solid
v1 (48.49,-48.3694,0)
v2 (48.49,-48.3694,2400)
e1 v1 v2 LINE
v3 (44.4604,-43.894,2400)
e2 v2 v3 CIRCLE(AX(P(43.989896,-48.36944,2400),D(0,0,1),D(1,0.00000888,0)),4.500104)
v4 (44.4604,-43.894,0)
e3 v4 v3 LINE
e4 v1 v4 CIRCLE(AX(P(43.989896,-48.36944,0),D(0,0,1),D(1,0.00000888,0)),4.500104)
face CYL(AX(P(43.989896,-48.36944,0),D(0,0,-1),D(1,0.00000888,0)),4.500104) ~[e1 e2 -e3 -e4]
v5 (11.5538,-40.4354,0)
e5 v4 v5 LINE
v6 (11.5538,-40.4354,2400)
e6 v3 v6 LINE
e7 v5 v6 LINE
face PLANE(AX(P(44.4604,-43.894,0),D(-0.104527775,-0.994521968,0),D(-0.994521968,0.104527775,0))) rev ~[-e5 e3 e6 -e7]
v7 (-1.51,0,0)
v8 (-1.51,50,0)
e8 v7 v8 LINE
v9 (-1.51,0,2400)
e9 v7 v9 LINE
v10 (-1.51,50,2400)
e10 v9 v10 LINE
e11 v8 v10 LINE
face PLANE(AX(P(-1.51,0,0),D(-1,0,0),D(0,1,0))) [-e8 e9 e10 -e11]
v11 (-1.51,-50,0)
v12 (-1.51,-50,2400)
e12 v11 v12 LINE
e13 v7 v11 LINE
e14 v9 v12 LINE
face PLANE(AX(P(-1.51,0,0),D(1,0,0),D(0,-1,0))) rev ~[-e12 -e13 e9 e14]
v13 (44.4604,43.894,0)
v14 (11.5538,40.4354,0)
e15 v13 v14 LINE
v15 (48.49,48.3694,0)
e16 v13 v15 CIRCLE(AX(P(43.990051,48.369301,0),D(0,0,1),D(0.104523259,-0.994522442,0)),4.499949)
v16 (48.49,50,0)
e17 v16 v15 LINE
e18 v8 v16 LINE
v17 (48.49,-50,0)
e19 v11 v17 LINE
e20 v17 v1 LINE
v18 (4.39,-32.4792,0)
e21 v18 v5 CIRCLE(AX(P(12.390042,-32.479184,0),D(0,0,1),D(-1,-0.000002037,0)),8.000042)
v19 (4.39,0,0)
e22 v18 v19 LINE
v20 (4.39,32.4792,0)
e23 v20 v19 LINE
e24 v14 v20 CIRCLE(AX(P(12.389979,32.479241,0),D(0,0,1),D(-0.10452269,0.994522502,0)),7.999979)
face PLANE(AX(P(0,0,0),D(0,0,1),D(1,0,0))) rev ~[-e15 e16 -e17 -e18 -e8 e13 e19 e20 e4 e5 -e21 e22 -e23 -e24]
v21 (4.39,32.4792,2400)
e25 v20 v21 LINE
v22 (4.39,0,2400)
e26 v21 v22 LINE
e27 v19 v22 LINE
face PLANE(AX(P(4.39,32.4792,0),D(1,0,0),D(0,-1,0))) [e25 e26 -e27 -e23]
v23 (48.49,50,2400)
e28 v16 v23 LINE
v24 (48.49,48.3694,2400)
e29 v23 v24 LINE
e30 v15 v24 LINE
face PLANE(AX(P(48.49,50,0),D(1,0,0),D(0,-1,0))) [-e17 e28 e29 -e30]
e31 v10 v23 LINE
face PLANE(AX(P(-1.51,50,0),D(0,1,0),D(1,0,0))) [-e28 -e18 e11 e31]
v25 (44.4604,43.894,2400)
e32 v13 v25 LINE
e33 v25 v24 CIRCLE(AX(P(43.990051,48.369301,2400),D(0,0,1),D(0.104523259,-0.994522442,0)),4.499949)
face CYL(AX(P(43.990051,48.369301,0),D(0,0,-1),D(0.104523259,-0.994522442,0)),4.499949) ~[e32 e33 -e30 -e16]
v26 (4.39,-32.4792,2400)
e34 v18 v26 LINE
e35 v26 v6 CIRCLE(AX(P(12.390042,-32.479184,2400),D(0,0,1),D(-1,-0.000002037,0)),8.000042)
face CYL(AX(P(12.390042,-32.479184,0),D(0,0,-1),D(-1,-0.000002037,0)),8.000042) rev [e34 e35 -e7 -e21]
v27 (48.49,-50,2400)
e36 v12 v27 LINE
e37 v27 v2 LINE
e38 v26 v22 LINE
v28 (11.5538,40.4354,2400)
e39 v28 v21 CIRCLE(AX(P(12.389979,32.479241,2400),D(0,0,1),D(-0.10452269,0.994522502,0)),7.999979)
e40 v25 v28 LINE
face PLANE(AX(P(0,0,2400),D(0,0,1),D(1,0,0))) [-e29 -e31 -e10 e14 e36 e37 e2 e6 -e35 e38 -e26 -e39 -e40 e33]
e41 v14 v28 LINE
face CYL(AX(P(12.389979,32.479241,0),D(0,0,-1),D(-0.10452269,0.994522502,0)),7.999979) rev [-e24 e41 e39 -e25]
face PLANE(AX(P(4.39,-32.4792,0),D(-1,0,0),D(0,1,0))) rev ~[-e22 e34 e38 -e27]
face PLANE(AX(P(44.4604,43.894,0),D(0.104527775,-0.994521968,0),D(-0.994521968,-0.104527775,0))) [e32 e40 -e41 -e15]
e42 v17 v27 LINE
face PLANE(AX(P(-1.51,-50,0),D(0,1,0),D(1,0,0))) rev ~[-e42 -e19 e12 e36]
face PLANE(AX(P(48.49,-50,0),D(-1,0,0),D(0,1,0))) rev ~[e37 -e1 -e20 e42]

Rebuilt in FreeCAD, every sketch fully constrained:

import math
import FreeCAD as App
import Part
import Sketcher
Q = App.Units.Quantity

doc = App.newDocument("Part")
body = doc.addObject("PartDesign::Body", "Body")

# Sketch on XY plane
sketch1 = doc.addObject("Sketcher::SketchObject", "Sketch")
body.addObject(sketch1)
sketch1.AttachmentSupport = (doc.XY_Plane, [""])
sketch1.MapMode = "FlatFace"
sketch1.addGeometry(Part.LineSegment(App.Vector(-1.5, 50, 0), App.Vector(-1.5, -50, 0)), False)
sketch1.addGeometry(Part.LineSegment(App.Vector(-1.5, -50, 0), App.Vector(48.5, -50, 0)), False)
sketch1.addGeometry(Part.LineSegment(App.Vector(48.5, -50, 0), App.Vector(48.5, -48.4, 0)), False)
sketch1.addGeometry(Part.ArcOfCircle(Part.Circle(App.Vector(44, -48.4, 0), App.Vector(0, 0, 1), 4.5), math.radians(0), math.radians(84)), False)
sketch1.addGeometry(Part.LineSegment(App.Vector(44.5, -43.9, 0), App.Vector(11.6, -40.4, 0)), False)
sketch1.addGeometry(Part.ArcOfCircle(Part.Circle(App.Vector(12.4, -32.5, 0), App.Vector(0, 0, 1), 8), math.radians(180), math.radians(264)), False)
sketch1.addGeometry(Part.LineSegment(App.Vector(4.4, -32.5, 0), App.Vector(4.4, 32.5, 0)), False)
sketch1.addGeometry(Part.ArcOfCircle(Part.Circle(App.Vector(12.4, 32.5, 0), App.Vector(0, 0, 1), 8), math.radians(96), math.radians(180)), False)
sketch1.addGeometry(Part.LineSegment(App.Vector(11.6, 40.4, 0), App.Vector(44.5, 43.9, 0)), False)
sketch1.addGeometry(Part.ArcOfCircle(Part.Circle(App.Vector(44, 48.4, 0), App.Vector(0, 0, 1), 4.5), math.radians(-84), math.radians(0)), False)
sketch1.addGeometry(Part.LineSegment(App.Vector(48.5, 48.4, 0), App.Vector(48.5, 50, 0)), False)
sketch1.addGeometry(Part.LineSegment(App.Vector(48.5, 50, 0), App.Vector(-1.5, 50, 0)), False)
sketch1.addConstraint(Sketcher.Constraint("Coincident", 0, 2, 1, 1))
sketch1.addConstraint(Sketcher.Constraint("Coincident", 1, 2, 2, 1))
sketch1.addConstraint(Sketcher.Constraint("Tangent", 2, 2, 3, 1))
sketch1.addConstraint(Sketcher.Constraint("Tangent", 3, 2, 4, 1))
sketch1.addConstraint(Sketcher.Constraint("Tangent", 4, 2, 5, 2))
sketch1.addConstraint(Sketcher.Constraint("Tangent", 5, 1, 6, 1))
sketch1.addConstraint(Sketcher.Constraint("Tangent", 6, 2, 7, 2))
sketch1.addConstraint(Sketcher.Constraint("Tangent", 7, 1, 8, 1))
sketch1.addConstraint(Sketcher.Constraint("Tangent", 8, 2, 9, 1))
sketch1.addConstraint(Sketcher.Constraint("Tangent", 9, 2, 10, 1))
sketch1.addConstraint(Sketcher.Constraint("Coincident", 10, 2, 11, 1))
sketch1.addConstraint(Sketcher.Constraint("Coincident", 11, 2, 0, 1))
sketch1.addConstraint(Sketcher.Constraint("Vertical", 0))
sketch1.addConstraint(Sketcher.Constraint("Horizontal", 1))
sketch1.addConstraint(Sketcher.Constraint("Vertical", 2))
sketch1.addConstraint(Sketcher.Constraint("Vertical", 6))
sketch1.addConstraint(Sketcher.Constraint("Vertical", 10))
sketch1.addConstraint(Sketcher.Constraint("Horizontal", 11))
sketch1.addConstraint(Sketcher.Constraint("Equal", 5, 7))
sketch1.addConstraint(Sketcher.Constraint("Equal", 3, 9))
sketch1.addConstraint(Sketcher.Constraint("Symmetric", 3, 3, 9, 3, -1))
sketch1.addConstraint(Sketcher.Constraint("Vertical", 4, 2, 7, 1))
sketch1.addConstraint(Sketcher.Constraint("Equal", 2, 10))
sketch1.addConstraint(Sketcher.Constraint("Radius", 5, 8.0))
sketch1.addConstraint(Sketcher.Constraint("Radius", 3, 4.5))
sketch1.addConstraint(Sketcher.Constraint("DistanceX", 1, 1, 1, 2, 50.0))
sketch1.addConstraint(Sketcher.Constraint("DistanceY", 0, 2, -1, 1, 50.0))
sketch1.addConstraint(Sketcher.Constraint("DistanceX", 0, 2, 5, 1, 5.9))
sketch1.addConstraint(Sketcher.Constraint("DistanceX", 0, 2, -1, 1, 1.51))
sketch1.addConstraint(Sketcher.Constraint("Angle", 4, Q("174 deg")))
sketch1.addConstraint(Sketcher.Constraint("DistanceY", 2, 1, 2, 2, 1.6306))
pad1 = doc.addObject("PartDesign::Pad", "Pad")
body.addObject(pad1)
pad1.Profile = sketch1
pad1.Length = 2400

doc.recompute()
